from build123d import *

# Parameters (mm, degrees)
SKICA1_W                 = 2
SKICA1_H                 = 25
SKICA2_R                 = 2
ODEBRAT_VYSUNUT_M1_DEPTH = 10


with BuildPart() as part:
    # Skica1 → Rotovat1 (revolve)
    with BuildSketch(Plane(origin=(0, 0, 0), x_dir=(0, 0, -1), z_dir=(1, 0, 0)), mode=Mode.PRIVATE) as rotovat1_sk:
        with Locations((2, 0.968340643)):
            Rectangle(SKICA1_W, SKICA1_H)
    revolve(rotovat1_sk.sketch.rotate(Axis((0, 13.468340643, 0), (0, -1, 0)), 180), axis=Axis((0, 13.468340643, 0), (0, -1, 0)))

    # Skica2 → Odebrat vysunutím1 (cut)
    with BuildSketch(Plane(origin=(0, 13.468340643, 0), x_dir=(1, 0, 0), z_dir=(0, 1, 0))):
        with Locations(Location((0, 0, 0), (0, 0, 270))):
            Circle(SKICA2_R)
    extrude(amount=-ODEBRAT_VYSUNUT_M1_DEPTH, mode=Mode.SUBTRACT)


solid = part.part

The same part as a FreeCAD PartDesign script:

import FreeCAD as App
import Part
import Sketcher


def add_polygon(sketch, points):
    """Adds a closed chain of lines whose ends are joined by coincident constraints."""
    first, n = sketch.GeometryCount, len(points)
    for a, b in zip(points, points[1:] + points[:1]):
        sketch.addGeometry(Part.LineSegment(App.Vector(*a, 0), App.Vector(*b, 0)), False)
    for i in range(n):
        sketch.addConstraint(Sketcher.Constraint("Coincident", first + i, 2, first + (i + 1) % n, 1))

doc = App.newDocument("Part")
body = doc.addObject("PartDesign::Body", "Body")

sketch1 = doc.addObject("Sketcher::SketchObject", "Sketch")
body.addObject(sketch1)
sketch1.AttachmentSupport = (doc.YZ_Plane, [""])
sketch1.MapMode = "FlatFace"
add_polygon(sketch1, [(13.468341, -1), (-11.531659, -1), (-11.531659, -3), (13.468341, -3)])
sketch1.addConstraint(Sketcher.Constraint("Horizontal", 0))
sketch1.addConstraint(Sketcher.Constraint("Vertical", 1))
sketch1.addConstraint(Sketcher.Constraint("Horizontal", 2))
sketch1.addConstraint(Sketcher.Constraint("Vertical", 3))
sketch1.addConstraint(Sketcher.Constraint("DistanceX", 0, 2, 0, 1, 25.0))
sketch1.addConstraint(Sketcher.Constraint("DistanceY", 1, 2, 1, 1, 2.0))
sketch1.addConstraint(Sketcher.Constraint("DistanceY", 0, 2, -1, 1, 1.0))
sketch1.addConstraint(Sketcher.Constraint("DistanceX", 0, 2, -1, 1, 11.531659))
revolution = doc.addObject("PartDesign::Revolution", "Revolution")
body.addObject(revolution)
revolution.Profile = sketch1
revolution.ReferenceAxis = (sketch1, ["H_Axis"])
revolution.Angle = 360

sketch2 = doc.addObject("Sketcher::SketchObject", "Sketch001")
body.addObject(sketch2)
sketch2.AttachmentSupport = (doc.XZ_Plane, [""])
sketch2.MapMode = "FlatFace"
sketch2.AttachmentOffset = App.Placement(App.Vector(0, 0, -13.468341), App.Rotation())
sketch2.addGeometry(Part.Circle(App.Vector(0, 0, 0), App.Vector(0, 0, 1), 2), False)
sketch2.addConstraint(Sketcher.Constraint("Coincident", 0, 3, -1, 1))
sketch2.addConstraint(Sketcher.Constraint("Diameter", 0, 4.0))
pocket1 = doc.addObject("PartDesign::Pocket", "Pocket")
body.addObject(pocket1)
pocket1.Profile = sketch2
pocket1.Length = 10
pocket1.Reversed = True

doc.recompute()
